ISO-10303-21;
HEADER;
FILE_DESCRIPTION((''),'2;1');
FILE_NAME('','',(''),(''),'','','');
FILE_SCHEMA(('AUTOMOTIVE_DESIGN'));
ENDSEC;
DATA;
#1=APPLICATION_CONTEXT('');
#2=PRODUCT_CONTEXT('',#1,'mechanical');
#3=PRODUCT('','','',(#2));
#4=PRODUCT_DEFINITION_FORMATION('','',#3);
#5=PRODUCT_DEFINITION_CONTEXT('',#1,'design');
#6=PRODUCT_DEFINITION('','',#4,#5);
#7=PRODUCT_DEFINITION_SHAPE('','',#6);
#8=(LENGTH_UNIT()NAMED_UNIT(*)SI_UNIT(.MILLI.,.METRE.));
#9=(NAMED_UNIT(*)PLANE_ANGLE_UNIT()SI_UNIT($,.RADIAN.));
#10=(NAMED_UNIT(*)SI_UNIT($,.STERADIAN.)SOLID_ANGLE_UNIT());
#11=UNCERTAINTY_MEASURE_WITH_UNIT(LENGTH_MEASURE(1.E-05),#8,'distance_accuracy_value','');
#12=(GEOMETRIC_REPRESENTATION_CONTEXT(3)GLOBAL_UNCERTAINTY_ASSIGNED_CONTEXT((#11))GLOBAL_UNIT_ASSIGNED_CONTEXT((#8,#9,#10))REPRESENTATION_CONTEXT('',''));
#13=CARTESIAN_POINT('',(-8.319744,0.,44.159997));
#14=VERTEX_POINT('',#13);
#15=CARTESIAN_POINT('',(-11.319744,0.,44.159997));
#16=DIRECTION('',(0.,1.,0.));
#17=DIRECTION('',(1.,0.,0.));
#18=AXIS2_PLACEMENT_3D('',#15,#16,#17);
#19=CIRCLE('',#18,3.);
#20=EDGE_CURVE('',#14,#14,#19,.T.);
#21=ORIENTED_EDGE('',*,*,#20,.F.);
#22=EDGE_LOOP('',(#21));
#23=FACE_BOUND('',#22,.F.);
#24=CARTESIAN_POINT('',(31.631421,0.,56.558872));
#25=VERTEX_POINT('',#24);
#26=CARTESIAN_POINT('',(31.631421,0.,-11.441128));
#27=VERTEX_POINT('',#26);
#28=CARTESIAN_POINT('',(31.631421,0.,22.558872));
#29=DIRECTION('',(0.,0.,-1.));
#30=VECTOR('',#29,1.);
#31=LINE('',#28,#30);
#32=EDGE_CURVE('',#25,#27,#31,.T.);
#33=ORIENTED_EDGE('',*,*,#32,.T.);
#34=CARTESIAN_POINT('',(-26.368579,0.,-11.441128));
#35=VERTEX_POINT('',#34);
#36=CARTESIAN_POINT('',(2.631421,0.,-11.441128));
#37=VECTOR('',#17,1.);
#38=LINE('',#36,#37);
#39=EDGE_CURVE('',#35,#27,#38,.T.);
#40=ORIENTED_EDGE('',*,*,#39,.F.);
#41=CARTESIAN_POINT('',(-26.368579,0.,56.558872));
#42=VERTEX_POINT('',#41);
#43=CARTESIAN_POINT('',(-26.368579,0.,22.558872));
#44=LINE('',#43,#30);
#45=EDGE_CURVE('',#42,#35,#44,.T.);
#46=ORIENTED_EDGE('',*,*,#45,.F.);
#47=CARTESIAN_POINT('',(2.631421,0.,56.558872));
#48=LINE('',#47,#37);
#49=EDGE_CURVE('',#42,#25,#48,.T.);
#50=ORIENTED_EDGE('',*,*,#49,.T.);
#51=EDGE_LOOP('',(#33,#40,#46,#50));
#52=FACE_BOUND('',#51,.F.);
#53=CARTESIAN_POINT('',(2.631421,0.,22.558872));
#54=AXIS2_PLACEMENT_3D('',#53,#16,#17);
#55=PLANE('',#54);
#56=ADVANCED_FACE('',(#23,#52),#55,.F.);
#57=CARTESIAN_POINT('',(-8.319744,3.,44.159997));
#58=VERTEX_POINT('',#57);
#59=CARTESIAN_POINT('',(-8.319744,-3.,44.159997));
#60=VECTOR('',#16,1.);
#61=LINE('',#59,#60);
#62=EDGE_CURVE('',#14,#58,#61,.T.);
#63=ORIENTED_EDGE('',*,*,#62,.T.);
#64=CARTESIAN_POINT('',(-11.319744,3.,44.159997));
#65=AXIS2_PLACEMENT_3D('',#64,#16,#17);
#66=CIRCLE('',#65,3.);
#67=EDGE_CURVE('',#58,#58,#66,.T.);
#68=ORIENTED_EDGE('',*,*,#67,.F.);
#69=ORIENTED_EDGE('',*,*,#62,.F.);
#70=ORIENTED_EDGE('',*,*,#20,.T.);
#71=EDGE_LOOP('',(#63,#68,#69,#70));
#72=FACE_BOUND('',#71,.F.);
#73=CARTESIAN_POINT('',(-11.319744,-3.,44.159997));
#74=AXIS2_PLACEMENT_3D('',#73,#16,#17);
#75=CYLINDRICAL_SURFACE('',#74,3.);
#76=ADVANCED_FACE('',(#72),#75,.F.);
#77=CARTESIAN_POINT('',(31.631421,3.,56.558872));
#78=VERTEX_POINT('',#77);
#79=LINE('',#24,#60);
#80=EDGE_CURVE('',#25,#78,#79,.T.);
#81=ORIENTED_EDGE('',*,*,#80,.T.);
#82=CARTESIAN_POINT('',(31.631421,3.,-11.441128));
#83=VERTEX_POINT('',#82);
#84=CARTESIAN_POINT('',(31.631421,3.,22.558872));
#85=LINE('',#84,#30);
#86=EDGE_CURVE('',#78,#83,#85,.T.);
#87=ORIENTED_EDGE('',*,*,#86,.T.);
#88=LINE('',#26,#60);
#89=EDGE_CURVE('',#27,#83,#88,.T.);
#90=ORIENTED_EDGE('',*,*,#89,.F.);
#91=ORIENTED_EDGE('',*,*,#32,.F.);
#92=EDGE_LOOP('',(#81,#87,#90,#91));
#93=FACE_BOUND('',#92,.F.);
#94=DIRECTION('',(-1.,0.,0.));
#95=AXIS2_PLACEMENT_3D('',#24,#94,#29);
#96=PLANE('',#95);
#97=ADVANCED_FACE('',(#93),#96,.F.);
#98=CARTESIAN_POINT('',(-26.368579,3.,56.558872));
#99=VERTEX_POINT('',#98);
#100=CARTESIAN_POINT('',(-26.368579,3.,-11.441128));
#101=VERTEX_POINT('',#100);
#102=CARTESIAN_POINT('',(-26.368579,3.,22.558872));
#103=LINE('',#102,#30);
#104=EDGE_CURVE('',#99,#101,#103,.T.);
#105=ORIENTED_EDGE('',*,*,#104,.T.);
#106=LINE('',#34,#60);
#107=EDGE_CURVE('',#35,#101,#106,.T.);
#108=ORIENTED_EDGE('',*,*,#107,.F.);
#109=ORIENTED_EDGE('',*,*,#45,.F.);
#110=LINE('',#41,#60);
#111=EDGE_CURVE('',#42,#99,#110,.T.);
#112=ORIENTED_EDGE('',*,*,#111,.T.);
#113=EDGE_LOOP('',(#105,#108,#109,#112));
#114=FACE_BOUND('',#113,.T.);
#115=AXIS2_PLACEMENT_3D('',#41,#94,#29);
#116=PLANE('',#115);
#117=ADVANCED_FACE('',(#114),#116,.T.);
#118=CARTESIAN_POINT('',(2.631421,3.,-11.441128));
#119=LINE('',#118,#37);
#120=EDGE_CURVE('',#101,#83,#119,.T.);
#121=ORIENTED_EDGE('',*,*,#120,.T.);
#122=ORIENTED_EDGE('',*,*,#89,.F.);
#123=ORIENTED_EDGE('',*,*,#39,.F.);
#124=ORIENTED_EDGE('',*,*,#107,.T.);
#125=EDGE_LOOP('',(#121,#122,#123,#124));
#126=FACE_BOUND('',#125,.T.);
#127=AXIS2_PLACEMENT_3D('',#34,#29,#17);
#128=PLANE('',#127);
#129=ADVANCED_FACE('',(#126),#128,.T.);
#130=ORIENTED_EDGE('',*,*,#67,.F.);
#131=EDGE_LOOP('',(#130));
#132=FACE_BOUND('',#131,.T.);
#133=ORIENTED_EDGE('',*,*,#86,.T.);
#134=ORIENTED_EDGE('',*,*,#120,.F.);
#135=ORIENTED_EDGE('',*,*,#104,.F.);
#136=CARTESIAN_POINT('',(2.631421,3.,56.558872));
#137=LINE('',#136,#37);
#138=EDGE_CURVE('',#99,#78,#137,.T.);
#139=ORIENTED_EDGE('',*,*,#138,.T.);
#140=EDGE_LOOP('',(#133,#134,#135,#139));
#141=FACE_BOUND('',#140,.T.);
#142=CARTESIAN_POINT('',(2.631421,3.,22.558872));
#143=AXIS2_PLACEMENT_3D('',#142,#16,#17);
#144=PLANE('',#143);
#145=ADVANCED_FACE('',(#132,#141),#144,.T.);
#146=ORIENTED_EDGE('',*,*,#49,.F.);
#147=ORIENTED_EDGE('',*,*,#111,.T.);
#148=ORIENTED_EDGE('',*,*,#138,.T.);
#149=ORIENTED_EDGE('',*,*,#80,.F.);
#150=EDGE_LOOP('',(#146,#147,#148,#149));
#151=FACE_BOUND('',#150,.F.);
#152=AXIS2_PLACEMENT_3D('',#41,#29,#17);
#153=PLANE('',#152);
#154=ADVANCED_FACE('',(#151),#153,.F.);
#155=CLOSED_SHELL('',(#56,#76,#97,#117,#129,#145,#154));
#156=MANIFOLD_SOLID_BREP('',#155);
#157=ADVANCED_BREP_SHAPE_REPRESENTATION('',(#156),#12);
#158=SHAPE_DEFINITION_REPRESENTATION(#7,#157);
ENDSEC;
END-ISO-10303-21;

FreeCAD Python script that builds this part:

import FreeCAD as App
import Part
import Sketcher

V = App.Vector

doc = App.newDocument("Part")
body = doc.addObject("PartDesign::Body", "Body")

# Sketch on XZ plane
sketch1 = body.newObject("Sketcher::SketchObject", "Sketch")
sketch1.AttachmentSupport = (doc.getObject("XZ_Plane"), [""])
sketch1.MapMode = "FlatFace"
sketch1.addGeometry([
    Part.LineSegment(V(-26.368579, -11.441128, 0), V(-26.368579, 56.558872, 0)),
    Part.LineSegment(V(-26.368579, 56.558872, 0), V(31.631421, 56.558872, 0)),
    Part.LineSegment(V(31.631421, 56.558872, 0), V(31.631421, -11.441128, 0)),
    Part.LineSegment(V(31.631421, -11.441128, 0), V(-26.368579, -11.441128, 0)),
], False)
sketch1.addConstraint([
    Sketcher.Constraint("Coincident", 0, 2, 1, 1),
    Sketcher.Constraint("Coincident", 1, 2, 2, 1),
    Sketcher.Constraint("Coincident", 2, 2, 3, 1),
    Sketcher.Constraint("Coincident", 3, 2, 0, 1),
    Sketcher.Constraint("Vertical", 0),
    Sketcher.Constraint("Horizontal", 1),
    Sketcher.Constraint("Vertical", 2),
    Sketcher.Constraint("Horizontal", 3),
    Sketcher.Constraint("DistanceX", 1, 1, 1, 2, 58.0),
    Sketcher.Constraint("DistanceY", 0, 1, 0, 2, 68.0),
    Sketcher.Constraint("DistanceX", 0, 2, -1, 1, 26.368579),
    Sketcher.Constraint("DistanceY", -1, 1, 0, 2, 56.558872),
])
pad1 = body.newObject("PartDesign::Pad", "Pad")
pad1.Profile = sketch1
pad1.Length = 3
pad1.Reversed = True

# Sketch on XZ plane
sketch2 = body.newObject("Sketcher::SketchObject", "Sketch001")
sketch2.AttachmentSupport = (doc.getObject("XZ_Plane"), [""])
sketch2.MapMode = "FlatFace"
sketch2.addGeometry(Part.Circle(V(-11.319744, 44.159997, 0), V(0, 0, 1), 3), False)
sketch2.addConstraint([
    Sketcher.Constraint("Diameter", 0, 6.0),
    Sketcher.Constraint("DistanceX", 0, 3, -1, 1, 11.319744),
    Sketcher.Constraint("DistanceY", -1, 1, 0, 3, 44.159997),
])
doc.recompute()
hole = body.newObject("PartDesign::Hole", "Hole")
hole.Profile = sketch2
hole.ThreadType = "None"
hole.Diameter = 6
hole.DepthType = "Dimension"
hole.Depth = 3
hole.DrillPoint = "Flat"

doc.recompute()
